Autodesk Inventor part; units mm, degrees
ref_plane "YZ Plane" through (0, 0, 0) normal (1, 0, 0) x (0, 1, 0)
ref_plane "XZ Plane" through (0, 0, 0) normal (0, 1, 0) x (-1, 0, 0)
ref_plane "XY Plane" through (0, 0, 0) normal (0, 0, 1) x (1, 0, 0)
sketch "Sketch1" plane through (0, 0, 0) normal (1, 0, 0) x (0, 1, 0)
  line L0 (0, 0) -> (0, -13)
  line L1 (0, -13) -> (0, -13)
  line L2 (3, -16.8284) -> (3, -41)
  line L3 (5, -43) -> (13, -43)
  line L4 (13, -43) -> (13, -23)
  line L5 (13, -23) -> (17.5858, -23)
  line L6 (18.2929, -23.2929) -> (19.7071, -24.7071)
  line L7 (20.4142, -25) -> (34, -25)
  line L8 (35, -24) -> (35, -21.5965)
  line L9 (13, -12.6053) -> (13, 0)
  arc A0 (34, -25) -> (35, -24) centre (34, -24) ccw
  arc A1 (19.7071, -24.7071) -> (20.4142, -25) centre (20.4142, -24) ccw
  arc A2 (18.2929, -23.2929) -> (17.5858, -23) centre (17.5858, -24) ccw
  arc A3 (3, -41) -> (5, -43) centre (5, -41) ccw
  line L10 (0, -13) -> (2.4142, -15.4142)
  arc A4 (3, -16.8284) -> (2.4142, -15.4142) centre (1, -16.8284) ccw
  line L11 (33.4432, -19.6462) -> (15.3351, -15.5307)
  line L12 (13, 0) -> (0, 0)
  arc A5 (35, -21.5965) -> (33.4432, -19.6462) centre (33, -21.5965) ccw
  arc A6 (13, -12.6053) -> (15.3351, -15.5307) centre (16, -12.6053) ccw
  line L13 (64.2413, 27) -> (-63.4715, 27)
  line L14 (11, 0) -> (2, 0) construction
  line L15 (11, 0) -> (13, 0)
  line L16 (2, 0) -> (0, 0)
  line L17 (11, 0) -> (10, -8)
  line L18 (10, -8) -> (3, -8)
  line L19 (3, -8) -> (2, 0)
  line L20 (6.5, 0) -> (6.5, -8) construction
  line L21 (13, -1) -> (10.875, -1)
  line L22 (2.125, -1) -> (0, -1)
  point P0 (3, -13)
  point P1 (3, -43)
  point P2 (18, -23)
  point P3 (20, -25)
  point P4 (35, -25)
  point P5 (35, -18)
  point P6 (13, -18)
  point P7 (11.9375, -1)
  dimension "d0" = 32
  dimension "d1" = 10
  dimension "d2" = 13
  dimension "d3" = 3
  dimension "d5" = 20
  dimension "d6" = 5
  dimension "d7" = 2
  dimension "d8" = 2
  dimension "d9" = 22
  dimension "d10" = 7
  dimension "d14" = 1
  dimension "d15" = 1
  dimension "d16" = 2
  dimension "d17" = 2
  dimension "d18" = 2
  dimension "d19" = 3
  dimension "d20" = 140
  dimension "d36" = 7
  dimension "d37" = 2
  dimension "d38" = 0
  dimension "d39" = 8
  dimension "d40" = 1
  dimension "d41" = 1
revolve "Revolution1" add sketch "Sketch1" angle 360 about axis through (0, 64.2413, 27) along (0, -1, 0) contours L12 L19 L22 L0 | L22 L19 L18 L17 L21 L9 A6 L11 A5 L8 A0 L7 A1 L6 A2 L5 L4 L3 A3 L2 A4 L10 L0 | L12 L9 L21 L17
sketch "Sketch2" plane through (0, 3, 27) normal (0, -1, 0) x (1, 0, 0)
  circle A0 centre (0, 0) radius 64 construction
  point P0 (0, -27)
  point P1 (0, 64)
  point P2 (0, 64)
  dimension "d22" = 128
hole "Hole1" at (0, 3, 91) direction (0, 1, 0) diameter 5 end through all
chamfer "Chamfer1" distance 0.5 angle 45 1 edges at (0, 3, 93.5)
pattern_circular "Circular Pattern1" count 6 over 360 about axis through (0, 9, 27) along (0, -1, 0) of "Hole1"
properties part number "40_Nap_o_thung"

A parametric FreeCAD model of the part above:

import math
import FreeCAD as App
import Part
import Sketcher

V = App.Vector
Q = App.Units.Quantity


def edges_at(feature, points):
    """Names of the edges that pass closest to the given points."""
    edges = feature.Shape.Edges
    near = lambda p: min(range(len(edges)), key=lambda i: edges[i].distToShape(Part.Vertex(*p))[0])
    return sorted({f"Edge{near(p) + 1}" for p in points})

doc = App.newDocument("Part")
body = doc.addObject("PartDesign::Body", "Body")

sketch1 = doc.addObject("Sketcher::SketchObject", "Sketch")
body.addObject(sketch1)
sketch1.AttachmentSupport = (doc.YZ_Plane, [""])
sketch1.MapMode = "FlatFace"
sketch1.addGeometry([
    Part.LineSegment(V(2, 0, 0), V(0, 0, 0)),
    Part.LineSegment(V(0, 0, 0), V(0, -13, 0)),
    Part.LineSegment(V(0, -13, 0), V(2.4142, -15.4142, 0)),
    Part.ArcOfCircle(Part.Circle(V(1, -16.8284, 0), V(0, 0, 1), 2), math.radians(0), math.radians(45)),
    Part.LineSegment(V(3, -16.8284, 0), V(3, -41, 0)),
    Part.ArcOfCircle(Part.Circle(V(5, -41, 0), V(0, 0, 1), 2), math.radians(180), math.radians(270)),
    Part.LineSegment(V(5, -43, 0), V(13, -43, 0)),
    Part.LineSegment(V(13, -43, 0), V(13, -23, 0)),
    Part.LineSegment(V(13, -23, 0), V(17.5858, -23, 0)),
    Part.ArcOfCircle(Part.Circle(V(17.5858, -24, 0), V(0, 0, 1), 0.99999), math.radians(45), math.radians(90)),
    Part.LineSegment(V(18.2929, -23.2929, 0), V(19.7071, -24.7071, 0)),
    Part.ArcOfCircle(Part.Circle(V(20.4142, -24, 0), V(0, 0, 1), 0.99999), math.radians(-135), math.radians(-90)),
    Part.LineSegment(V(20.4142, -25, 0), V(34, -25, 0)),
    Part.ArcOfCircle(Part.Circle(V(34, -24, 0), V(0, 0, 1), 1), math.radians(-90), math.radians(0)),
    Part.LineSegment(V(35, -24, 0), V(35, -21.5965, 0)),
    Part.ArcOfCircle(Part.Circle(V(33, -21.5965, 0), V(0, 0, 1), 2), math.radians(0), math.radians(77.197131)),
    Part.LineSegment(V(33.4432, -19.6462, 0), V(15.3351, -15.5307, 0)),
    Part.ArcOfCircle(Part.Circle(V(16, -12.6053, 0), V(0, 0, 1), 3), math.radians(180), math.radians(257.195057)),
    Part.LineSegment(V(13, -12.6053, 0), V(13, 0, 0)),
    Part.LineSegment(V(13, 0, 0), V(11, 0, 0)),
    Part.LineSegment(V(11, 0, 0), V(10, -8, 0)),
    Part.LineSegment(V(10, -8, 0), V(3, -8, 0)),
    Part.LineSegment(V(3, -8, 0), V(2, 0, 0)),
], False)
sketch1.addGeometry(Part.LineSegment(V(35, 27, 0), V(0, 27, 0)), True)
sketch1.addConstraint([
    Sketcher.Constraint("Coincident", 0, 2, 1, 1),
    Sketcher.Constraint("Coincident", 1, 2, 2, 1),
    Sketcher.Constraint("Tangent", 2, 2, 3, 2),
    Sketcher.Constraint("Tangent", 3, 1, 4, 1),
    Sketcher.Constraint("Tangent", 4, 2, 5, 1),
    Sketcher.Constraint("Tangent", 5, 2, 6, 1),
    Sketcher.Constraint("Coincident", 6, 2, 7, 1),
    Sketcher.Constraint("Coincident", 7, 2, 8, 1),
    Sketcher.Constraint("Tangent", 8, 2, 9, 2),
    Sketcher.Constraint("Tangent", 9, 1, 10, 1),
    Sketcher.Constraint("Tangent", 10, 2, 11, 1),
    Sketcher.Constraint("Tangent", 11, 2, 12, 1),
    Sketcher.Constraint("Tangent", 12, 2, 13, 1),
    Sketcher.Constraint("Tangent", 13, 2, 14, 1),
    Sketcher.Constraint("Tangent", 14, 2, 15, 1),
    Sketcher.Constraint("Tangent", 15, 2, 16, 1),
    Sketcher.Constraint("Tangent", 16, 2, 17, 2),
    Sketcher.Constraint("Tangent", 17, 1, 18, 1),
    Sketcher.Constraint("Coincident", 18, 2, 19, 1),
    Sketcher.Constraint("Coincident", 19, 2, 20, 1),
    Sketcher.Constraint("Coincident", 20, 2, 21, 1),
    Sketcher.Constraint("Coincident", 21, 2, 22, 1),
    Sketcher.Constraint("Coincident", 22, 2, 0, 1),
    Sketcher.Constraint("Horizontal", 0),
    Sketcher.Constraint("Vertical", 1),
    Sketcher.Constraint("Vertical", 4),
    Sketcher.Constraint("Horizontal", 6),
    Sketcher.Constraint("Vertical", 7),
    Sketcher.Constraint("Horizontal", 8),
    Sketcher.Constraint("Horizontal", 12),
    Sketcher.Constraint("Vertical", 14),
    Sketcher.Constraint("Vertical", 18),
    Sketcher.Constraint("Horizontal", 19),
    Sketcher.Constraint("Horizontal", 21),
    Sketcher.Constraint("Horizontal", 23),
    Sketcher.Constraint("Coincident", 0, 2, -1, 1),
    Sketcher.Constraint("Equal", 3, 5),
    Sketcher.Constraint("Equal", 9, 11),
    Sketcher.Constraint("Equal", 11, 13),
    Sketcher.Constraint("Equal", 5, 15),
    Sketcher.Constraint("PointOnObject", 18, 2, -1),
    Sketcher.Constraint("PointOnObject", 23, 2, -2),
    Sketcher.Constraint("Parallel", 2, 10),
    Sketcher.Constraint("Horizontal", 9, 3, 11, 3),
    Sketcher.Constraint("Vertical", 7, 2, 17, 1),
    Sketcher.Constraint("Vertical", 4, 2, 21, 2),
    Sketcher.Constraint("Vertical", 14, 2, 23, 1),
    Sketcher.Constraint("Equal", 0, 19),
    Sketcher.Constraint("Equal", 20, 22),
    Sketcher.Constraint("Radius", 3, Q("2 mm")),
    Sketcher.Constraint("Radius", 9, Q("1 mm")),
    Sketcher.Constraint("Radius", 17, Q("3 mm")),
    Sketcher.Constraint("DistanceX", 0, 2, 0, 1, Q("2 mm")),
    Sketcher.Constraint("DistanceX", 6, 1, 6, 2, Q("8 mm")),
    Sketcher.Constraint("DistanceX", 21, 2, 21, 1, Q("7 mm")),
    Sketcher.Constraint("DistanceY", 1, 2, 1, 1, Q("13 mm")),
    Sketcher.Constraint("DistanceY", 7, 1, 7, 2, Q("20 mm")),
    Sketcher.Constraint("Distance", 10, Q("2 mm")),
    Sketcher.Constraint("DistanceY", 20, 2, -1, 1, Q("8 mm")),
    Sketcher.Constraint("DistanceX", 3, 3, 15, 3, Q("32 mm")),
    Sketcher.Constraint("DistanceY", 5, 3, -1, 1, Q("41 mm")),
    Sketcher.Constraint("DistanceY", -1, 1, 23, 1, Q("27 mm")),
    Sketcher.Constraint("Distance", 16, Q("18.57 mm")),
    Sketcher.Constraint("DistanceX", 8, 1, 8, 2, Q("4.5858 mm")),
    Sketcher.Constraint("DistanceY", 14, 1, 14, 2, Q("2.4035 mm")),
])
revolution = doc.addObject("PartDesign::Revolution", "Revolution")
body.addObject(revolution)
revolution.Profile = sketch1
revolution.ReferenceAxis = (sketch1, ["Axis0"])
revolution.Angle = 360

sketch2 = doc.addObject("Sketcher::SketchObject", "Sketch001")
body.addObject(sketch2)
sketch2.AttachmentSupport = (doc.XZ_Plane, [""])
sketch2.MapMode = "FlatFace"
sketch2.AttachmentOffset = App.Placement(V(0, 0, -3), App.Rotation())
sketch2.addGeometry(Part.Circle(V(0, 91, 0), V(0, 0, 1), 2.5), False)
sketch2.addConstraint([
    Sketcher.Constraint("PointOnObject", 0, 3, -2),
    Sketcher.Constraint("Diameter", 0, Q("5 mm")),
    Sketcher.Constraint("DistanceY", -1, 1, 0, 3, Q("91 mm")),
])
doc.recompute()
hole = doc.addObject("PartDesign::Hole", "Hole")
body.addObject(hole)
hole.Profile = sketch2
hole.ThreadType = "None"
hole.Diameter = 5
hole.DepthType = "ThroughAll"
doc.recompute()

chamfer = doc.addObject("PartDesign::Chamfer", "Chamfer")
body.addObject(chamfer)
chamfer.Base = (hole, edges_at(hole, [(0, 3, 93.5)]))
chamfer.Size = 0.5
doc.recompute()

datumline = doc.addObject("PartDesign::Line", "DatumLine")
body.addObject(datumline)
datumline.Placement = App.Placement(V(0, 0, 27), App.Rotation(V(0, 0, 1), V(0, 1, 0)))
polarpattern = doc.addObject("PartDesign::PolarPattern", "PolarPattern")
body.addObject(polarpattern)
polarpattern.Originals = [hole]
polarpattern.Axis = (datumline, [""])
polarpattern.Angle = 360
polarpattern.Occurrences = 6
body.Tip = polarpattern

doc.recompute()
